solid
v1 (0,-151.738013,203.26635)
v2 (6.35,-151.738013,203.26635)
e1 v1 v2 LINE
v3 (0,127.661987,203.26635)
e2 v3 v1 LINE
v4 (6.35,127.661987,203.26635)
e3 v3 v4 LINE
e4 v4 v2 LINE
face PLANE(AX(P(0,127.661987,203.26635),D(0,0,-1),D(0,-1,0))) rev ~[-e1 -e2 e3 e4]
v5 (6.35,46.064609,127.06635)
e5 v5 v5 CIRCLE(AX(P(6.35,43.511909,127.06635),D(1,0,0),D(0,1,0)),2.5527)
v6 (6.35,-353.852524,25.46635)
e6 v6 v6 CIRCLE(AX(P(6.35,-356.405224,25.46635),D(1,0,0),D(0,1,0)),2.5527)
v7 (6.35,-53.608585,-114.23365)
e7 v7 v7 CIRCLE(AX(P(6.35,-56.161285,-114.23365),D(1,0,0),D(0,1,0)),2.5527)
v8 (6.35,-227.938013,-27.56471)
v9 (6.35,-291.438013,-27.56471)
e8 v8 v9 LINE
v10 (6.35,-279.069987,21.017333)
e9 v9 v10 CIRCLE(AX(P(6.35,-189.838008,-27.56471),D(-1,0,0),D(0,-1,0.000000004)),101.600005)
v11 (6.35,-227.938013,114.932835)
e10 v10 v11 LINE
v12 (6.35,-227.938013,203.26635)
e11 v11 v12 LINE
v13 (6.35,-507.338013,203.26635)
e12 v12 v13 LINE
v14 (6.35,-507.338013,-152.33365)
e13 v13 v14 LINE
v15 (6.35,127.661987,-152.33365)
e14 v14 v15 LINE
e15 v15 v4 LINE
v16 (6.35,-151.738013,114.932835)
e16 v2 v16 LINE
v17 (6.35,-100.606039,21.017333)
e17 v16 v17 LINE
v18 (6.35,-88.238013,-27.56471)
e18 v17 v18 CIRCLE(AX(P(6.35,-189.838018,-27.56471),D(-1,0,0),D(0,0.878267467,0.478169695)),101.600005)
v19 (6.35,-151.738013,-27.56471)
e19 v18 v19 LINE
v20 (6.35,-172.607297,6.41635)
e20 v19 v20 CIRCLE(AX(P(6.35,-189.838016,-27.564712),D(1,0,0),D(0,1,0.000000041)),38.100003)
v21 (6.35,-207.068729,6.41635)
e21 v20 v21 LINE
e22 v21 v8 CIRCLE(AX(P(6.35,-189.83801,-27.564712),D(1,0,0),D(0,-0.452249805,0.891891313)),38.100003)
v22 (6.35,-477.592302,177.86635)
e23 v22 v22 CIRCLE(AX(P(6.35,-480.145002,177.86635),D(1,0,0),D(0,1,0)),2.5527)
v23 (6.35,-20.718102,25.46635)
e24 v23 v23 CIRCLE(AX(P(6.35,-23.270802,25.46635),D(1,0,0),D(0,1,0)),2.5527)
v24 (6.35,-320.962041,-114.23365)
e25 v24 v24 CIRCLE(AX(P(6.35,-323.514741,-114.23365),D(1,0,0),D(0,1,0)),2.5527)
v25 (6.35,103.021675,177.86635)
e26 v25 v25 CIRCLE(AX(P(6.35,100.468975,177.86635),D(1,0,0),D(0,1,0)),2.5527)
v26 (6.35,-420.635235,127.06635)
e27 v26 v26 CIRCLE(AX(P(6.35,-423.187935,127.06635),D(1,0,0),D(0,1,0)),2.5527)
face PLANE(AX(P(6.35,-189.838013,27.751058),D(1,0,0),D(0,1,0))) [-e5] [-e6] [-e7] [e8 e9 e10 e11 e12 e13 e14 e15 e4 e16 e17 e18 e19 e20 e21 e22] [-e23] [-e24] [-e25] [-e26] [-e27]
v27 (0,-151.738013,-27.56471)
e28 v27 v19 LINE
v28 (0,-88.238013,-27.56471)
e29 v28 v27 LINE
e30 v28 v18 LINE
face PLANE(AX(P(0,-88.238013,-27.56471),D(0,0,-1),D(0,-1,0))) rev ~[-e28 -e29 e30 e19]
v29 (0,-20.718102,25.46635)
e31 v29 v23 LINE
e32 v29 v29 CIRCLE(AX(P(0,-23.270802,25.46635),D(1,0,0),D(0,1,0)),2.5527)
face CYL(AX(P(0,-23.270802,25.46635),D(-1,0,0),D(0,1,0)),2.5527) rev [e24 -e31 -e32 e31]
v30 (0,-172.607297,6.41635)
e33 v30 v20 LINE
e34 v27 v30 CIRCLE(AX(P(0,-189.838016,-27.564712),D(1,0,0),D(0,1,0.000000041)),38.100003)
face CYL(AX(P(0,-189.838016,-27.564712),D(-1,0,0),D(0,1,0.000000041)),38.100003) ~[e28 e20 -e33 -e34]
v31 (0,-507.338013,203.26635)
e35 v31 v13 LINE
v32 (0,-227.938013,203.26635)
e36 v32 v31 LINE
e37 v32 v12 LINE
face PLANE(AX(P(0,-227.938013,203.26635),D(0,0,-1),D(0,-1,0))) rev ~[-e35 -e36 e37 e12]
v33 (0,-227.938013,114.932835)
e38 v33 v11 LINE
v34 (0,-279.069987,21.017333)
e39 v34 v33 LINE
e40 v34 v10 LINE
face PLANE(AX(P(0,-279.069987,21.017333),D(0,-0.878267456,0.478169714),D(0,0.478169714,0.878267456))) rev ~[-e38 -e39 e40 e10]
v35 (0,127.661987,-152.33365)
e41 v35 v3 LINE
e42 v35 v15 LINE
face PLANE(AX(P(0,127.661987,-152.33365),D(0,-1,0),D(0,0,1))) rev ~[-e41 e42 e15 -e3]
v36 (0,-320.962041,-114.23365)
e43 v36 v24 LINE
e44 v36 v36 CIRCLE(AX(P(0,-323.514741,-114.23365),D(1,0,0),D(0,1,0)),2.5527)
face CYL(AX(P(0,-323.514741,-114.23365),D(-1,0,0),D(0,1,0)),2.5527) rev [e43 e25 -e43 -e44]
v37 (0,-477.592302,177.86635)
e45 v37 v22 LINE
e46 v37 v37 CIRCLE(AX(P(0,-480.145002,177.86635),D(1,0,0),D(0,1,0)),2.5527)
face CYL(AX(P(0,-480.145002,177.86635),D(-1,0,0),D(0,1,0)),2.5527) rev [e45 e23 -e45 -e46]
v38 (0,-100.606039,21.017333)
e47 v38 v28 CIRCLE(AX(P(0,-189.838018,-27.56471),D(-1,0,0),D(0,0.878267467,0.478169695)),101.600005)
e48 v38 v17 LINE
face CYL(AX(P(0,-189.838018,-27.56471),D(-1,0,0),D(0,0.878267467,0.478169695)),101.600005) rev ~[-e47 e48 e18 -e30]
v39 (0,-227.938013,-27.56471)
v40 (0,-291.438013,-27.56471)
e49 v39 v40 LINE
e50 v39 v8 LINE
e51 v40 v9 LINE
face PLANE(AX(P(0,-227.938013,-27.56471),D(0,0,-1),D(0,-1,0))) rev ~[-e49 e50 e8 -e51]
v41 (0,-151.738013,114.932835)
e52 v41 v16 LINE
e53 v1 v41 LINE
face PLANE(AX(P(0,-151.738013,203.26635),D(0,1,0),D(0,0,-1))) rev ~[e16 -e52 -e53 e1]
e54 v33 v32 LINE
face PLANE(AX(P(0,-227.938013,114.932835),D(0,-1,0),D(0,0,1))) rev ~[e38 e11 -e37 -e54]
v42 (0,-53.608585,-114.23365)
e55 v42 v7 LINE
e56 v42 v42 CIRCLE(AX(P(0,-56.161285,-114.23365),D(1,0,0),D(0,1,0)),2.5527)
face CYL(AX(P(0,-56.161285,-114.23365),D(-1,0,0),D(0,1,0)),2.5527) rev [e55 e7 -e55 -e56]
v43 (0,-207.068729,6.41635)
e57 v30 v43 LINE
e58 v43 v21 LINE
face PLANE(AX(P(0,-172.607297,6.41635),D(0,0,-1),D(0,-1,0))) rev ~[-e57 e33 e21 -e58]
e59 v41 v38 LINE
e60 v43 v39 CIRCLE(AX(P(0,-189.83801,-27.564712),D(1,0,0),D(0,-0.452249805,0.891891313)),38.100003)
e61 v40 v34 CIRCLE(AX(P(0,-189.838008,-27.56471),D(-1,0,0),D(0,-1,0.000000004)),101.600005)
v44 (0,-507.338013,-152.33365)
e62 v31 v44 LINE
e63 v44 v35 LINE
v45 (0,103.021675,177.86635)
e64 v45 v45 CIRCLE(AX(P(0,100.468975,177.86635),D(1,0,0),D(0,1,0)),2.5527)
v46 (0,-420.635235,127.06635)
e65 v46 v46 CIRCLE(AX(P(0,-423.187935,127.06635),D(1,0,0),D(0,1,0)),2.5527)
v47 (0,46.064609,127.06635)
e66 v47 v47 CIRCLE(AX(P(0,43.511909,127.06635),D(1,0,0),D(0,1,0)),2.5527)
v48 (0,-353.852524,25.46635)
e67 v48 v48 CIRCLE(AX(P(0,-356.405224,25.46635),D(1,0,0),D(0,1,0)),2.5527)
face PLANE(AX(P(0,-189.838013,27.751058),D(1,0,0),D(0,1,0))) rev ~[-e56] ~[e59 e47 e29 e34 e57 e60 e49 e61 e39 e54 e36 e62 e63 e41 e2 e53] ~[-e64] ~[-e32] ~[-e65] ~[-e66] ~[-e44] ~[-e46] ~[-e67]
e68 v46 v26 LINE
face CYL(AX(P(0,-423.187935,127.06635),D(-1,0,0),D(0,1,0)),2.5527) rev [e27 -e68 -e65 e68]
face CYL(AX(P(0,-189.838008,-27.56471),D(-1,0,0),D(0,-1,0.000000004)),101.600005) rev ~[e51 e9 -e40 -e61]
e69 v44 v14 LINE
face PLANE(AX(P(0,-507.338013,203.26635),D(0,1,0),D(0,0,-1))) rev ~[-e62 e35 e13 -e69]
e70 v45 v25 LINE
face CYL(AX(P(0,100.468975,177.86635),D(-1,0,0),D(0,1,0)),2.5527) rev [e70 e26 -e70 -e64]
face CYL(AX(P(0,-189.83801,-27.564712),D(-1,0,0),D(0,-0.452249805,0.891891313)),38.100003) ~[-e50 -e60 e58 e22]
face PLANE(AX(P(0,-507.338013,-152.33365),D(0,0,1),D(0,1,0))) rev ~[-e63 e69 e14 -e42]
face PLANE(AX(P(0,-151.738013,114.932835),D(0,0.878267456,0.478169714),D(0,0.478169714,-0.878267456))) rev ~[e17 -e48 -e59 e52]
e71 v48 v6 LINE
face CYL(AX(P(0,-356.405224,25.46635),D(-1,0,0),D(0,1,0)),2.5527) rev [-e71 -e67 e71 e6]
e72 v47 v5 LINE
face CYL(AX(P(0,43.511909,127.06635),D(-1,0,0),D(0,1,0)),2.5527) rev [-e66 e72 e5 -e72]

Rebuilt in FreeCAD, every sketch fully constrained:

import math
import FreeCAD as App
import Part
import Sketcher

V = App.Vector
Q = App.Units.Quantity

doc = App.newDocument("Part")
body = doc.addObject("PartDesign::Body", "Body")

# Sketch on YZ plane
sketch1 = body.newObject("Sketcher::SketchObject", "Sketch")
sketch1.AttachmentSupport = (doc.getObject("YZ_Plane"), [""])
sketch1.MapMode = "FlatFace"
sketch1.addGeometry([
    Part.LineSegment(V(-507.3, 203.3, 0), V(-507.3, -152.3, 0)),  # 0
    Part.LineSegment(V(-507.3, -152.3, 0), V(127.7, -152.3, 0)),  # 1
    Part.LineSegment(V(127.7, -152.3, 0), V(127.7, 203.3, 0)),  # 2
    Part.LineSegment(V(127.7, 203.3, 0), V(-151.7, 203.3, 0)),  # 3
    Part.LineSegment(V(-151.7, 203.3, 0), V(-151.7, 114.9, 0)),  # 4
    Part.LineSegment(V(-151.7, 114.9, 0), V(-100.6, 21, 0)),  # 5
    Part.ArcOfCircle(Part.Circle(V(-189.8, -27.6, 0), V(0, 0, 1), 101.6), math.radians(0), math.radians(29)),  # 6
    Part.LineSegment(V(-88.2, -27.6, 0), V(-151.7, -27.6, 0)),  # 7
    Part.ArcOfCircle(Part.Circle(V(-189.8, -27.6, 0), V(0, 0, 1), 38.1), math.radians(0), math.radians(63)),  # 8
    Part.LineSegment(V(-172.6, 6.4, 0), V(-207.1, 6.4, 0)),  # 9
    Part.ArcOfCircle(Part.Circle(V(-189.8, -27.6, 0), V(0, 0, 1), 38.1), math.radians(117), math.radians(180)),  # 10
    Part.LineSegment(V(-227.9, -27.6, 0), V(-291.4, -27.6, 0)),  # 11
    Part.ArcOfCircle(Part.Circle(V(-189.8, -27.6, 0), V(0, 0, 1), 101.6), math.radians(151), math.radians(180)),  # 12
    Part.LineSegment(V(-279.1, 21, 0), V(-227.9, 114.9, 0)),  # 13
    Part.LineSegment(V(-227.9, 114.9, 0), V(-227.9, 203.3, 0)),  # 14
    Part.LineSegment(V(-227.9, 203.3, 0), V(-507.3, 203.3, 0)),  # 15
    Part.Circle(V(-323.5, -114.2, 0), V(0, 0, 1), 2.6),  # 16
    Part.Circle(V(-356.4, 25.5, 0), V(0, 0, 1), 2.6),  # 17
    Part.Circle(V(-56.2, -114.2, 0), V(0, 0, 1), 2.6),  # 18
    Part.Circle(V(-23.3, 25.5, 0), V(0, 0, 1), 2.6),  # 19
    Part.Circle(V(-423.2, 127.1, 0), V(0, 0, 1), 2.6),  # 20
    Part.Circle(V(-480.1, 177.9, 0), V(0, 0, 1), 2.6),  # 21
    Part.Circle(V(43.5, 127.1, 0), V(0, 0, 1), 2.6),  # 22
    Part.Circle(V(100.5, 177.9, 0), V(0, 0, 1), 2.6),  # 23
], False)
sketch1.addConstraint([
    Sketcher.Constraint("Coincident", 0, 2, 1, 1),
    Sketcher.Constraint("Coincident", 1, 2, 2, 1),
    Sketcher.Constraint("Coincident", 2, 2, 3, 1),
    Sketcher.Constraint("Coincident", 3, 2, 4, 1),
    Sketcher.Constraint("Coincident", 4, 2, 5, 1),
    Sketcher.Constraint("Tangent", 5, 2, 6, 2),
    Sketcher.Constraint("Coincident", 6, 1, 7, 1),
    Sketcher.Constraint("Coincident", 7, 2, 8, 1),
    Sketcher.Constraint("Coincident", 8, 2, 9, 1),
    Sketcher.Constraint("Coincident", 9, 2, 10, 1),
    Sketcher.Constraint("Coincident", 10, 2, 11, 1),
    Sketcher.Constraint("Coincident", 11, 2, 12, 2),
    Sketcher.Constraint("Tangent", 12, 1, 13, 1),
    Sketcher.Constraint("Coincident", 13, 2, 14, 1),
    Sketcher.Constraint("Coincident", 14, 2, 15, 1),
    Sketcher.Constraint("Coincident", 15, 2, 0, 1),
    Sketcher.Constraint("Vertical", 0),
    Sketcher.Constraint("Horizontal", 1),
    Sketcher.Constraint("Vertical", 2),
    Sketcher.Constraint("Horizontal", 3),
    Sketcher.Constraint("Vertical", 4),
    Sketcher.Constraint("Horizontal", 7),
    Sketcher.Constraint("Horizontal", 9),
    Sketcher.Constraint("Horizontal", 11),
    Sketcher.Constraint("Vertical", 14),
    Sketcher.Constraint("Horizontal", 15),
    Sketcher.Constraint("Coincident", 8, 3, 6, 3),
    Sketcher.Constraint("Coincident", 10, 3, 6, 3),
    Sketcher.Constraint("Coincident", 12, 3, 6, 3),
    Sketcher.Constraint("Equal", 8, 10),
    Sketcher.Constraint("Equal", 6, 12),
    Sketcher.Constraint("Equal", 16, 17),
    Sketcher.Constraint("Equal", 17, 18),
    Sketcher.Constraint("Equal", 18, 19),
    Sketcher.Constraint("Equal", 19, 20),
    Sketcher.Constraint("Equal", 20, 21),
    Sketcher.Constraint("Equal", 21, 22),
    Sketcher.Constraint("Equal", 22, 23),
    Sketcher.Constraint("Horizontal", 16, 3, 18, 3),
    Sketcher.Constraint("Horizontal", 17, 3, 19, 3),
    Sketcher.Constraint("Horizontal", 20, 3, 22, 3),
    Sketcher.Constraint("Horizontal", 21, 3, 23, 3),
    Sketcher.Constraint("Horizontal", 12, 3, 6, 1),
    Sketcher.Constraint("Horizontal", 7, 2, 10, 2),
    Sketcher.Constraint("Horizontal", 5, 2, 12, 1),
    Sketcher.Constraint("Horizontal", 4, 2, 13, 2),
    Sketcher.Constraint("Horizontal", 3, 2, 14, 2),
    Sketcher.Constraint("Vertical", 4, 2, 7, 2),
    Sketcher.Constraint("Equal", 3, 15),
    Sketcher.Constraint("Radius", 6, Q("4.0000002 in")),
    Sketcher.Constraint("Radius", 8, Q("1.5000001 in")),
    Sketcher.Constraint("DistanceX", 1, 1, 1, 2, Q("25 in")),
    Sketcher.Constraint("DistanceY", 0, 2, 0, 1, Q("14 in")),
    Sketcher.Constraint("Diameter", 16, Q("0.201 in")),
    Sketcher.Constraint("DistanceY", 17, 3, 20, 3, Q("4 in")),
    Sketcher.Constraint("DistanceY", 20, 3, 21, 3, Q("2 in")),
    Sketcher.Constraint("DistanceY", 0, 2, 17, 3, Q("7 in")),
    Sketcher.Constraint("DistanceY", 16, 3, 17, 3, Q("5.5 in")),
    Sketcher.Constraint("DistanceY", 9, 2, 14, 2, Q("7.75 in")),
    Sketcher.Constraint("DistanceX", 19, 3, -1, 1, Q("23.270802 mm")),
    Sketcher.Constraint("DistanceX", 21, 3, -1, 1, Q("480.145002 mm")),
    Sketcher.Constraint("Distance", 5, Q("106.93269 mm")),
    Sketcher.Constraint("DistanceX", 9, 2, 9, 1, Q("34.461432 mm")),
    Sketcher.Constraint("DistanceY", 6, 3, -1, 1, Q("27.56471 mm")),
    Sketcher.Constraint("DistanceX", 10, 3, -1, 1, Q("189.83801 mm")),
    Sketcher.Constraint("DistanceX", 16, 3, -1, 1, Q("323.514741 mm")),
    Sketcher.Constraint("DistanceX", -1, 1, 22, 3, Q("43.511909 mm")),
    Sketcher.Constraint("DistanceX", 17, 3, 8, 3, Q("166.567208 mm")),
    Sketcher.Constraint("DistanceX", 8, 3, 18, 3, Q("133.676731 mm")),
    Sketcher.Constraint("DistanceX", 20, 3, 17, 3, Q("66.782711 mm")),
    Sketcher.Constraint("DistanceX", 18, 3, 23, 3, Q("156.63026 mm")),
])
pad1 = body.newObject("PartDesign::Pad", "Pad")
pad1.Profile = sketch1
pad1.Length = Q("0.25 in")

doc.recompute()
